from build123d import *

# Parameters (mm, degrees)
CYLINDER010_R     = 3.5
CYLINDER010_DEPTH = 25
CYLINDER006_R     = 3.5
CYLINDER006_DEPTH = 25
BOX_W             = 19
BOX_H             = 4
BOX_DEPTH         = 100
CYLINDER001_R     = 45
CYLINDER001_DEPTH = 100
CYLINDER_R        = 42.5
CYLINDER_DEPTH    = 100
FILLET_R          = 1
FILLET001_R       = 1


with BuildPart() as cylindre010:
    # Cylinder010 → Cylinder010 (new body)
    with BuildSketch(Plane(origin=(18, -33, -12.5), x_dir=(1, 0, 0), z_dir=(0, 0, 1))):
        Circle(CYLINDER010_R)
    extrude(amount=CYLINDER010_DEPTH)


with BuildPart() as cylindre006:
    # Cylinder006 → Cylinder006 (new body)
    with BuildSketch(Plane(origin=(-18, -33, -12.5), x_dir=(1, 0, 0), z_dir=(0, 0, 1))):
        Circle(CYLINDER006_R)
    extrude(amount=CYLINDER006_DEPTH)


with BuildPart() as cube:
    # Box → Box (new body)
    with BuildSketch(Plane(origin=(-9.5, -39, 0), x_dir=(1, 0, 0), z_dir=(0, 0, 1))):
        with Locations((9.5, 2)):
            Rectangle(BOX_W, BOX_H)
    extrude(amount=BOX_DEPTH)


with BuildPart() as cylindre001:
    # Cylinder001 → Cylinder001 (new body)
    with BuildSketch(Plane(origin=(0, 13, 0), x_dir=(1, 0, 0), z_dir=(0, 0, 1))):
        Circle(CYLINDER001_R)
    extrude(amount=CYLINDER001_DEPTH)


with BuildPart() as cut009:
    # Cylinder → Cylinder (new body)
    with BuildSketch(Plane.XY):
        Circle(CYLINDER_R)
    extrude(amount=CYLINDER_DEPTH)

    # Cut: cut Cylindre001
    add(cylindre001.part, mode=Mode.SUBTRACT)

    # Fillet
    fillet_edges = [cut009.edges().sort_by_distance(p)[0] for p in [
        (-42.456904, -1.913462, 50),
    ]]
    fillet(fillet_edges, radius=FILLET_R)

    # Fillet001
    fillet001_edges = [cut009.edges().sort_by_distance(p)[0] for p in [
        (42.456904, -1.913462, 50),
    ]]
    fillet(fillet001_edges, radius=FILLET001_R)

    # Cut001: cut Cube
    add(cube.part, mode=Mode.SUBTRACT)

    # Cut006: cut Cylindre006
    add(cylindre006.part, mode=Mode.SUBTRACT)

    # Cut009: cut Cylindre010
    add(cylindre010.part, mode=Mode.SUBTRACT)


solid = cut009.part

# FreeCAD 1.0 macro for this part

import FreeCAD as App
import Part
import Sketcher
from FreeCAD import Vector
Q = App.Units.Quantity


def edges_at(feature, points):
    """Names of the edges that pass closest to the given points."""
    edges = feature.Shape.Edges
    near = lambda p: min(range(len(edges)), key=lambda i: edges[i].distToShape(Part.Vertex(*p))[0])
    return sorted({f"Edge{near(p) + 1}" for p in points})


def add_polygon(sketch, points):
    """Adds a closed chain of lines whose ends are joined by coincident constraints."""
    first, n = sketch.GeometryCount, len(points)
    for a, b in zip(points, points[1:] + points[:1]):
        sketch.addGeometry(Part.LineSegment(App.Vector(*a, 0), App.Vector(*b, 0)), False)
    for i in range(n):
        sketch.addConstraint(Sketcher.Constraint("Coincident", first + i, 2, first + (i + 1) % n, 1))

doc = App.newDocument("Part")
body = doc.addObject("PartDesign::Body", "Body")

sketch1 = doc.addObject("Sketcher::SketchObject", "Sketch")
body.addObject(sketch1)
sketch1.AttachmentSupport = (doc.XY_Plane, [""])
sketch1.MapMode = "FlatFace"
sketch1.AttachmentOffset = App.Placement(Vector(0, 0, -12.5), App.Rotation())
sketch1.addGeometry(Part.Circle(Vector(18, -33, 0), Vector(0, 0, 1), 3.5), False)
sketch1.addConstraint([
    Sketcher.Constraint("Diameter", 0, Q("7 mm")),
    Sketcher.Constraint("DistanceX", -1, 1, 0, 3, Q("18 mm")),
    Sketcher.Constraint("DistanceY", 0, 3, -1, 1, Q("33 mm")),
])
pad1 = doc.addObject("PartDesign::Pad", "Pad")
body.addObject(pad1)
pad1.Profile = sketch1
pad1.Length = 25
body2 = doc.addObject("PartDesign::Body", "Body001")

sketch2 = doc.addObject("Sketcher::SketchObject", "Sketch001")
body2.addObject(sketch2)
sketch2.AttachmentSupport = (doc.getObject("XY_Plane001"), [""])
sketch2.MapMode = "FlatFace"
sketch2.AttachmentOffset = App.Placement(Vector(0, 0, -12.5), App.Rotation())
sketch2.addGeometry(Part.Circle(Vector(-18, -33, 0), Vector(0, 0, 1), 3.5), False)
sketch2.addConstraint([
    Sketcher.Constraint("Diameter", 0, Q("7 mm")),
    Sketcher.Constraint("DistanceX", 0, 3, -1, 1, Q("18 mm")),
    Sketcher.Constraint("DistanceY", 0, 3, -1, 1, Q("33 mm")),
])
pad2 = doc.addObject("PartDesign::Pad", "Pad001")
body2.addObject(pad2)
pad2.Profile = sketch2
pad2.Length = 25
body3 = doc.addObject("PartDesign::Body", "Body002")

sketch3 = doc.addObject("Sketcher::SketchObject", "Sketch002")
body3.addObject(sketch3)
sketch3.AttachmentSupport = (doc.getObject("XY_Plane002"), [""])
sketch3.MapMode = "FlatFace"
add_polygon(sketch3, [(-9.5, -35), (-9.5, -39), (9.5, -39), (9.5, -35)])
sketch3.addConstraint([
    Sketcher.Constraint("Vertical", 0),
    Sketcher.Constraint("Horizontal", 1),
    Sketcher.Constraint("Vertical", 2),
    Sketcher.Constraint("Horizontal", 3),
    Sketcher.Constraint("DistanceX", 1, 1, 1, 2, Q("19 mm")),
    Sketcher.Constraint("DistanceY", 0, 2, 0, 1, Q("4 mm")),
    Sketcher.Constraint("DistanceY", 0, 2, -1, 1, Q("39 mm")),
    Sketcher.Constraint("DistanceX", 0, 2, -1, 1, Q("9.5 mm")),
])
pad3 = doc.addObject("PartDesign::Pad", "Pad002")
body3.addObject(pad3)
pad3.Profile = sketch3
pad3.Length = 100
body4 = doc.addObject("PartDesign::Body", "Body003")

sketch4 = doc.addObject("Sketcher::SketchObject", "Sketch003")
body4.addObject(sketch4)
sketch4.AttachmentSupport = (doc.getObject("XY_Plane003"), [""])
sketch4.MapMode = "FlatFace"
sketch4.addGeometry(Part.Circle(Vector(0, 13, 0), Vector(0, 0, 1), 45), False)
sketch4.addConstraint([
    Sketcher.Constraint("PointOnObject", 0, 3, -2),
    Sketcher.Constraint("Diameter", 0, Q("90 mm")),
    Sketcher.Constraint("DistanceY", -1, 1, 0, 3, Q("13 mm")),
])
pad4 = doc.addObject("PartDesign::Pad", "Pad003")
body4.addObject(pad4)
pad4.Profile = sketch4
pad4.Length = 100
body5 = doc.addObject("PartDesign::Body", "Body004")

sketch5 = doc.addObject("Sketcher::SketchObject", "Sketch004")
body5.addObject(sketch5)
sketch5.AttachmentSupport = (doc.getObject("XY_Plane004"), [""])
sketch5.MapMode = "FlatFace"
sketch5.addGeometry(Part.Circle(Vector(0, 0, 0), Vector(0, 0, 1), 42), False)
sketch5.addConstraint([
    Sketcher.Constraint("Coincident", 0, 3, -1, 1),
    Sketcher.Constraint("Diameter", 0, Q("85 mm")),
])
pad5 = doc.addObject("PartDesign::Pad", "Pad004")
body5.addObject(pad5)
pad5.Profile = sketch5
pad5.Length = 100
doc.recompute()

boolean = doc.addObject("PartDesign::Boolean", "Boolean")
body5.addObject(boolean)
boolean.Type = "Cut"
boolean.addObjects([body4])
doc.recompute()

fillet = doc.addObject("PartDesign::Fillet", "Fillet")
body5.addObject(fillet)
fillet.Base = (boolean, edges_at(boolean, [(-42.457, -1.913, 50)]))
fillet.Radius = 1
doc.recompute()

fillet2 = doc.addObject("PartDesign::Fillet", "Fillet001")
body5.addObject(fillet2)
fillet2.Base = (fillet, edges_at(fillet, [(42.457, -1.913, 50)]))
fillet2.Radius = 1
doc.recompute()

boolean2 = doc.addObject("PartDesign::Boolean", "Boolean001")
body5.addObject(boolean2)
boolean2.Type = "Cut"
boolean2.addObjects([body3])
doc.recompute()

boolean3 = doc.addObject("PartDesign::Boolean", "Boolean002")
body5.addObject(boolean3)
boolean3.Type = "Cut"
boolean3.addObjects([body2])
doc.recompute()

boolean4 = doc.addObject("PartDesign::Boolean", "Boolean003")
body5.addObject(boolean4)
boolean4.Type = "Cut"
boolean4.addObjects([body])

doc.recompute()
